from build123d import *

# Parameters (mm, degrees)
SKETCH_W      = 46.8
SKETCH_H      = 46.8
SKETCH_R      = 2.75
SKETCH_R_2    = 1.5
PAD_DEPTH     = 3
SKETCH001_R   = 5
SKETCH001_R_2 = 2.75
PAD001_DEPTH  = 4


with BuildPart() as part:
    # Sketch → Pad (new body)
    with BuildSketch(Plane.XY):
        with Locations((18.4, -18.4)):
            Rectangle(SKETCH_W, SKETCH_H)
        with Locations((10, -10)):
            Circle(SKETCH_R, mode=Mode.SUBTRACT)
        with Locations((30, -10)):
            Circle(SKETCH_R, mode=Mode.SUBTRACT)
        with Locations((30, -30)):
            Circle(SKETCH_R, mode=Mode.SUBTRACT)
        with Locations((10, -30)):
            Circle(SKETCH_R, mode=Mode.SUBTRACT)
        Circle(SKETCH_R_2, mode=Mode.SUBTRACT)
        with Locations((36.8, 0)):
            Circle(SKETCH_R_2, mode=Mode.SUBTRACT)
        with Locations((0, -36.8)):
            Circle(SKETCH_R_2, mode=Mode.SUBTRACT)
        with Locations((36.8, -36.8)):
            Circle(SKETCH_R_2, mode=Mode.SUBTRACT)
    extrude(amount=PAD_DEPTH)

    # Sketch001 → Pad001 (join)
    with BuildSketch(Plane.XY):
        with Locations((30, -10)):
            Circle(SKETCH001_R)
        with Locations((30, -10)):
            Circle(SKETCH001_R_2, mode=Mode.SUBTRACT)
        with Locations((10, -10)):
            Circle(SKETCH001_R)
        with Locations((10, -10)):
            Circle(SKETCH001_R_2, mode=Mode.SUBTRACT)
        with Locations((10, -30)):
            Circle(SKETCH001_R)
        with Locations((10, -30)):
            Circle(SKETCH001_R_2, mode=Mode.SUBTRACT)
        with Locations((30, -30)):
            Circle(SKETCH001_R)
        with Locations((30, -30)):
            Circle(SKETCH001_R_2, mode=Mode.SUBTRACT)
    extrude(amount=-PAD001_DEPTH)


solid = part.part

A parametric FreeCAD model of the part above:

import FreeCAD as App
import Part
import Sketcher

V = App.Vector

doc = App.newDocument("Part")
body = doc.addObject("PartDesign::Body", "Body")

sketch1 = body.newObject("Sketcher::SketchObject", "Sketch")
sketch1.AttachmentSupport = (doc.getObject("XY_Plane"), [""])
sketch1.MapMode = "FlatFace"
sketch1.addGeometry(Part.LineSegment(V(-5, 5, 0), V(-5, -41.8, 0)), False)
sketch1.addGeometry(Part.LineSegment(V(-5, -41.8, 0), V(41.8, -41.8, 0)), False)
sketch1.addGeometry(Part.LineSegment(V(41.8, -41.8, 0), V(41.8, 5, 0)), False)
sketch1.addGeometry(Part.LineSegment(V(41.8, 5, 0), V(-5, 5, 0)), False)
sketch1.addGeometry(Part.Circle(V(0, -36.8, 0), V(0, 0, 1), 1.5), False)
sketch1.addGeometry(Part.Circle(V(10, -30, 0), V(0, 0, 1), 2.8), False)
sketch1.addGeometry(Part.Circle(V(36.8, -36.8, 0), V(0, 0, 1), 1.5), False)
sketch1.addGeometry(Part.Circle(V(30, -30, 0), V(0, 0, 1), 2.8), False)
sketch1.addGeometry(Part.Circle(V(10, -10, 0), V(0, 0, 1), 2.8), False)
sketch1.addGeometry(Part.Circle(V(0, 0, 0), V(0, 0, 1), 1.5), False)
sketch1.addGeometry(Part.Circle(V(30, -10, 0), V(0, 0, 1), 2.8), False)
sketch1.addGeometry(Part.Circle(V(36.8, 0, 0), V(0, 0, 1), 1.5), False)
sketch1.addConstraint(Sketcher.Constraint("Coincident", 0, 2, 1, 1))
sketch1.addConstraint(Sketcher.Constraint("Coincident", 1, 2, 2, 1))
sketch1.addConstraint(Sketcher.Constraint("Coincident", 2, 2, 3, 1))
sketch1.addConstraint(Sketcher.Constraint("Coincident", 3, 2, 0, 1))
sketch1.addConstraint(Sketcher.Constraint("Vertical", 0))
sketch1.addConstraint(Sketcher.Constraint("Horizontal", 1))
sketch1.addConstraint(Sketcher.Constraint("Vertical", 2))
sketch1.addConstraint(Sketcher.Constraint("Horizontal", 3))
sketch1.addConstraint(Sketcher.Constraint("Coincident", 9, 3, -1, 1))
sketch1.addConstraint(Sketcher.Constraint("Equal", 4, 6))
sketch1.addConstraint(Sketcher.Constraint("Equal", 5, 7))
sketch1.addConstraint(Sketcher.Constraint("Equal", 7, 8))
sketch1.addConstraint(Sketcher.Constraint("Equal", 6, 9))
sketch1.addConstraint(Sketcher.Constraint("Equal", 8, 10))
sketch1.addConstraint(Sketcher.Constraint("Equal", 9, 11))
sketch1.addConstraint(Sketcher.Constraint("PointOnObject", 4, 3, -2))
sketch1.addConstraint(Sketcher.Constraint("PointOnObject", 11, 3, -1))
sketch1.addConstraint(Sketcher.Constraint("Horizontal", 4, 3, 6, 3))
sketch1.addConstraint(Sketcher.Constraint("Horizontal", 5, 3, 7, 3))
sketch1.addConstraint(Sketcher.Constraint("Horizontal", 8, 3, 10, 3))
sketch1.addConstraint(Sketcher.Constraint("Vertical", 5, 3, 8, 3))
sketch1.addConstraint(Sketcher.Constraint("Vertical", 7, 3, 10, 3))
sketch1.addConstraint(Sketcher.Constraint("Vertical", 6, 3, 11, 3))
sketch1.addConstraint(Sketcher.Constraint("Equal", 3, 0))
sketch1.addConstraint(Sketcher.Constraint("Diameter", 4, 3.0))
sketch1.addConstraint(Sketcher.Constraint("Diameter", 5, 5.5))
sketch1.addConstraint(Sketcher.Constraint("DistanceX", 1, 1, 1, 2, 46.8))
sketch1.addConstraint(Sketcher.Constraint("DistanceX", -1, 1, 5, 3, 10.0))
sketch1.addConstraint(Sketcher.Constraint("DistanceY", 5, 3, -1, 1, 30.0))
sketch1.addConstraint(Sketcher.Constraint("DistanceX", -1, 1, 7, 3, 30.0))
sketch1.addConstraint(Sketcher.Constraint("DistanceY", 8, 3, -1, 1, 10.0))
sketch1.addConstraint(Sketcher.Constraint("DistanceX", 0, 2, -1, 1, 5.0))
sketch1.addConstraint(Sketcher.Constraint("DistanceY", -1, 1, 2, 2, 5.0))
sketch1.addConstraint(Sketcher.Constraint("DistanceY", 0, 2, 4, 3, 5.0))
sketch1.addConstraint(Sketcher.Constraint("DistanceX", 6, 3, 1, 2, 5.0))
pad1 = body.newObject("PartDesign::Pad", "Pad")
pad1.Profile = sketch1
pad1.Length = 3

sketch2 = body.newObject("Sketcher::SketchObject", "Sketch001")
sketch2.AttachmentSupport = (doc.getObject("XY_Plane"), [""])
sketch2.MapMode = "FlatFace"
sketch2.addGeometry(Part.Circle(V(30, -10, 0), V(0, 0, 1), 5), False)
sketch2.addGeometry(Part.Circle(V(30, -10, 0), V(0, 0, 1), 2.8), False)
sketch2.addGeometry(Part.Circle(V(10, -10, 0), V(0, 0, 1), 5), False)
sketch2.addGeometry(Part.Circle(V(10, -10, 0), V(0, 0, 1), 2.8), False)
sketch2.addGeometry(Part.Circle(V(10, -30, 0), V(0, 0, 1), 5), False)
sketch2.addGeometry(Part.Circle(V(10, -30, 0), V(0, 0, 1), 2.8), False)
sketch2.addGeometry(Part.Circle(V(30, -30, 0), V(0, 0, 1), 5), False)
sketch2.addGeometry(Part.Circle(V(30, -30, 0), V(0, 0, 1), 2.8), False)
sketch2.addConstraint(Sketcher.Constraint("Coincident", 1, 3, 0, 3))
sketch2.addConstraint(Sketcher.Constraint("Coincident", 3, 3, 2, 3))
sketch2.addConstraint(Sketcher.Constraint("Coincident", 5, 3, 4, 3))
sketch2.addConstraint(Sketcher.Constraint("Coincident", 7, 3, 6, 3))
sketch2.addConstraint(Sketcher.Constraint("Equal", 0, 2))
sketch2.addConstraint(Sketcher.Constraint("Equal", 1, 3))
sketch2.addConstraint(Sketcher.Constraint("Equal", 2, 4))
sketch2.addConstraint(Sketcher.Constraint("Equal", 3, 5))
sketch2.addConstraint(Sketcher.Constraint("Equal", 4, 6))
sketch2.addConstraint(Sketcher.Constraint("Equal", 5, 7))
sketch2.addConstraint(Sketcher.Constraint("Horizontal", 1, 3, 2, 3))
sketch2.addConstraint(Sketcher.Constraint("Horizontal", 5, 3, 6, 3))
sketch2.addConstraint(Sketcher.Constraint("Vertical", 3, 3, 4, 3))
sketch2.addConstraint(Sketcher.Constraint("Vertical", 1, 3, 6, 3))
sketch2.addConstraint(Sketcher.Constraint("Diameter", 0, 10.0))
sketch2.addConstraint(Sketcher.Constraint("Diameter", 1, 5.5))
sketch2.addConstraint(Sketcher.Constraint("DistanceX", -1, 1, 0, 3, 30.0))
sketch2.addConstraint(Sketcher.Constraint("DistanceY", 0, 3, -1, 1, 10.0))
sketch2.addConstraint(Sketcher.Constraint("DistanceX", -1, 1, 2, 3, 10.0))
sketch2.addConstraint(Sketcher.Constraint("DistanceY", 4, 3, -1, 1, 30.0))
pad2 = body.newObject("PartDesign::Pad", "Pad001")
pad2.Profile = sketch2
pad2.Length = 4
pad2.Reversed = True

doc.recompute()
